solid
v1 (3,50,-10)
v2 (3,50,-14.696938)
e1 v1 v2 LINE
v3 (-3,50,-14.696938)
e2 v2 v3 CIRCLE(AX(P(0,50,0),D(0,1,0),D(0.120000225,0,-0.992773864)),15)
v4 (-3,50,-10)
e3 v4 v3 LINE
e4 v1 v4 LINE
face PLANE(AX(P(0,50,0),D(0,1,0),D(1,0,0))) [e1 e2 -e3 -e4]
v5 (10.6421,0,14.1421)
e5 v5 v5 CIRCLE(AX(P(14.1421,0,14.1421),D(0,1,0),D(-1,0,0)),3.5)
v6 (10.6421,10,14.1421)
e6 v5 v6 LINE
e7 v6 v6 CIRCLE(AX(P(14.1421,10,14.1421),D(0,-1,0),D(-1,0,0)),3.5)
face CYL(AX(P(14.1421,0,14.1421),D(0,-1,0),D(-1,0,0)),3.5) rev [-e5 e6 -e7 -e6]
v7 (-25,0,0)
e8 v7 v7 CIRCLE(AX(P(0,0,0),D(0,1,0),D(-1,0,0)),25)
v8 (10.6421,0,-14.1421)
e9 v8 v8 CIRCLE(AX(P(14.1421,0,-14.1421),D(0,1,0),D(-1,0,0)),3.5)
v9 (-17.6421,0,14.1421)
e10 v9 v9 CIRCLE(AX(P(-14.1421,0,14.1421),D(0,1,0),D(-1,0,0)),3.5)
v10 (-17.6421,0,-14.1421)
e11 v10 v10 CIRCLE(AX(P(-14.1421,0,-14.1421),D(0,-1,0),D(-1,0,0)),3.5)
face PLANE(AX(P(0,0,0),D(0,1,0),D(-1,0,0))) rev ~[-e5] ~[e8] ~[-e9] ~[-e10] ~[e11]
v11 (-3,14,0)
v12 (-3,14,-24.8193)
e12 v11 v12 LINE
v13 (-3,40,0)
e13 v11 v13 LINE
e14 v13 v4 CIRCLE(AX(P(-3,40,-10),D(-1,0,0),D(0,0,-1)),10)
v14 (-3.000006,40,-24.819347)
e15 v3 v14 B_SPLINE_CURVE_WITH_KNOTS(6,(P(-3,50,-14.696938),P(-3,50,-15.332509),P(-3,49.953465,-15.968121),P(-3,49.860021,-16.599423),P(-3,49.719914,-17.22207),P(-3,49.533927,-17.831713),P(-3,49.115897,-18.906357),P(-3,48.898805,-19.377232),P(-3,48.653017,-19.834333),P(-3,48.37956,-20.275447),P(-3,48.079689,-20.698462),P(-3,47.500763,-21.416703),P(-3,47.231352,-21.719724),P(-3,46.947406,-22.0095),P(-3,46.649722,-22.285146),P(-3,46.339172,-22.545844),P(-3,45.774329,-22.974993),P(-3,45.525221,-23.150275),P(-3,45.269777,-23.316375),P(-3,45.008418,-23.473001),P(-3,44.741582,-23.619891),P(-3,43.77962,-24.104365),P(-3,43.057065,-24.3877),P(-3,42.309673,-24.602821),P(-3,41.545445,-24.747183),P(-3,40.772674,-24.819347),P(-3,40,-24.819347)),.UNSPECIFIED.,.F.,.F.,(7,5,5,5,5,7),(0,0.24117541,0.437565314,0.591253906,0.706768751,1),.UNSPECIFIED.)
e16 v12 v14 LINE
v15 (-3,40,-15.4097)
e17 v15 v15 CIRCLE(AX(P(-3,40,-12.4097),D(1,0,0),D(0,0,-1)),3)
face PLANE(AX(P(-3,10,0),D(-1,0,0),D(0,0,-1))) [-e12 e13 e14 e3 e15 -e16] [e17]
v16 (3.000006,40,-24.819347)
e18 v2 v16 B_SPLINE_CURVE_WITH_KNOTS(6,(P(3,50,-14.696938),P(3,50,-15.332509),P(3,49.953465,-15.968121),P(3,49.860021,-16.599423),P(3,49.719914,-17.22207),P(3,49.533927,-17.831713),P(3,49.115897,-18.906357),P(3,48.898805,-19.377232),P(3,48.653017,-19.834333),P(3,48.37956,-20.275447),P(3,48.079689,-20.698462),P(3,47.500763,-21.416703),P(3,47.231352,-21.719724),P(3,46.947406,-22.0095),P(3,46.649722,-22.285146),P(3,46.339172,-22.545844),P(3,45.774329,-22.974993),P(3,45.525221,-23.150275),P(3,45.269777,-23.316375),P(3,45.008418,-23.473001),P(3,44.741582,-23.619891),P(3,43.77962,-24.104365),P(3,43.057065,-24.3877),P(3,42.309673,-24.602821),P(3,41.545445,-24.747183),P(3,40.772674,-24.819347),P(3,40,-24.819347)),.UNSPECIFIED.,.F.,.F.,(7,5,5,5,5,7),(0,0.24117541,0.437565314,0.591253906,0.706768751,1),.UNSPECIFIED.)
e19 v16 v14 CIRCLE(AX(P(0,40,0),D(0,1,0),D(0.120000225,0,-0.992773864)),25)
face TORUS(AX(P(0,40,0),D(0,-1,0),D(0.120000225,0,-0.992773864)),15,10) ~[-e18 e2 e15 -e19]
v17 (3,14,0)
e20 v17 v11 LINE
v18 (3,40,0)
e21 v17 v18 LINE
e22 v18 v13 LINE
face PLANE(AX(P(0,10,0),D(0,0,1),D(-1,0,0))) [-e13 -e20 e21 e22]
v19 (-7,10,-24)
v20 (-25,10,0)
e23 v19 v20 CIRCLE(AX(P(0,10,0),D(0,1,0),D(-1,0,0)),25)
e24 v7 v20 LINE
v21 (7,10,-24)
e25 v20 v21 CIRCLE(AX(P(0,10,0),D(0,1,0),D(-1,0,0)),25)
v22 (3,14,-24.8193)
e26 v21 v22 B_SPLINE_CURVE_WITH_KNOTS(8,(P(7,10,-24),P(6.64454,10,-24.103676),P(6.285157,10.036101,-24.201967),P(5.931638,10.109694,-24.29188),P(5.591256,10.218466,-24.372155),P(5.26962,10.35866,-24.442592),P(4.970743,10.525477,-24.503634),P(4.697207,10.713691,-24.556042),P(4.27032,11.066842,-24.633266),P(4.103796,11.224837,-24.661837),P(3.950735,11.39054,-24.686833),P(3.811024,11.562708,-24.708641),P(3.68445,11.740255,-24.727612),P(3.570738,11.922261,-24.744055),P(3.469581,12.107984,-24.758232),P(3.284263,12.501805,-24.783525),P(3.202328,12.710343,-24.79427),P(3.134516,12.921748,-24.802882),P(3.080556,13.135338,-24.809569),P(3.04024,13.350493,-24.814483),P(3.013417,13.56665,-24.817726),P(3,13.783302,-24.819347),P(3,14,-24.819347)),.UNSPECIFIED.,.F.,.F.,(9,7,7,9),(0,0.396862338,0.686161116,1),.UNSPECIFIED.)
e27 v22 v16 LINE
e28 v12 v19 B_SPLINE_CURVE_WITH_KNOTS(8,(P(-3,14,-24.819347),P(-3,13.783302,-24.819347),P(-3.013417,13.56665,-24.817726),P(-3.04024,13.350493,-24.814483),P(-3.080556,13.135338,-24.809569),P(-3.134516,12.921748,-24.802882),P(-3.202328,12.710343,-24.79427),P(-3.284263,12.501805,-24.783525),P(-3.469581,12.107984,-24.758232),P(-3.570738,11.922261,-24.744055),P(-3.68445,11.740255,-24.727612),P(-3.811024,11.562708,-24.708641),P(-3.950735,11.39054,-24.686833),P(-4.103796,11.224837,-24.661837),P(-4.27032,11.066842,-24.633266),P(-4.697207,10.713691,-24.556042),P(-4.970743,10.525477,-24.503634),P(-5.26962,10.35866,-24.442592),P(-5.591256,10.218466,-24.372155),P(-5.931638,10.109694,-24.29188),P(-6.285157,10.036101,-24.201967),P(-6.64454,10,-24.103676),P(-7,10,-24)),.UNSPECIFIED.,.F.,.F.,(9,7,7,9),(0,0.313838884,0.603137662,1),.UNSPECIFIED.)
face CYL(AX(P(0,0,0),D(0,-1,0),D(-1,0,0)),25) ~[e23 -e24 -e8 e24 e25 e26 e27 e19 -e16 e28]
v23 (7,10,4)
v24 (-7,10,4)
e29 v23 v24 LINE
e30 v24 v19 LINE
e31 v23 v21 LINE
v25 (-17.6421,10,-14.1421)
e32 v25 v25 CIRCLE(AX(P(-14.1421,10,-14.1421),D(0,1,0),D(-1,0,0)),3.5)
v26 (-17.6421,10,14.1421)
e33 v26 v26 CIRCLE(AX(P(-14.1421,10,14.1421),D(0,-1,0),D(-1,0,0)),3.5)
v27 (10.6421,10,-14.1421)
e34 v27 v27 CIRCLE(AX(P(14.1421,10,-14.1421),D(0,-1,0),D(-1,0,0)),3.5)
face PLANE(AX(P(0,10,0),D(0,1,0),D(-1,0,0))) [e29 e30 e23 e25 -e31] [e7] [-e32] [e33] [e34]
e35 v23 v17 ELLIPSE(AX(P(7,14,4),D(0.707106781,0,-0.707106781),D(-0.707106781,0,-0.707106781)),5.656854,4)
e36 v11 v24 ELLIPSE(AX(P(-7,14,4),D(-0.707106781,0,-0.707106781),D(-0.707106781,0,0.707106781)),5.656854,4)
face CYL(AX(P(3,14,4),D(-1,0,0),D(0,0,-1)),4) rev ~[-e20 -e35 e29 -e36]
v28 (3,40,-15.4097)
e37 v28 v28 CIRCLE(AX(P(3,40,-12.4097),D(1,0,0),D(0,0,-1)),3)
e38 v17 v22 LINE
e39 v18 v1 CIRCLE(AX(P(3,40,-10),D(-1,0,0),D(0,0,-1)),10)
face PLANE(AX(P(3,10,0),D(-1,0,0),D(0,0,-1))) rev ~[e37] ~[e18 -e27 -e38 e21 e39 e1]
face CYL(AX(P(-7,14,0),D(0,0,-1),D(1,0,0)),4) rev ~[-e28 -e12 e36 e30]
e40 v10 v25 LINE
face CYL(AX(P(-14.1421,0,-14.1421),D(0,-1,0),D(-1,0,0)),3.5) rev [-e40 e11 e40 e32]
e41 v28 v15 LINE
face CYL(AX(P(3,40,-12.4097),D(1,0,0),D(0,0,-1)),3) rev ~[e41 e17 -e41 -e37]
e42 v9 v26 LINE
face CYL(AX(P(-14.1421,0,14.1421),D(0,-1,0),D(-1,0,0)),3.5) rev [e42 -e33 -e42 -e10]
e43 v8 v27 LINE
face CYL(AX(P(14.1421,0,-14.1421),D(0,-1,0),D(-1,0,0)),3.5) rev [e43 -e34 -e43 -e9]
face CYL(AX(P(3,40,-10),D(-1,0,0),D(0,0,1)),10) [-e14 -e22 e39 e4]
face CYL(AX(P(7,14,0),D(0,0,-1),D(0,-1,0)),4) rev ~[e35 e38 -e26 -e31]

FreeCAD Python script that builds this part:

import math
import FreeCAD as App
import Part
import Sketcher

V = App.Vector


def edges_at(feature, points):
    """Names of the edges that pass closest to the given points."""
    edges = feature.Shape.Edges
    near = lambda p: min(range(len(edges)), key=lambda i: edges[i].distToShape(Part.Vertex(*p))[0])
    return sorted({f"Edge{near(p) + 1}" for p in points})

doc = App.newDocument("Part")
params = doc.addObject("Spreadsheet::Sheet", "Params")
for row, (alias, value) in enumerate([
    ("sketch1_diameter", "50 mm"),
    ("sketch1_diameter2", "7 mm"),
    ("pad1_length", "10 mm"),
    ("sketch2_radius", "25 mm"),
    ("pad2_length", "40 mm"),
    ("fillet_radius", "10 mm"),
    ("fillet2_radius", "10 mm"),
    ("fillet3_radius", "4 mm"),
    ("sketch3_diameter", "6 mm"),
    ("pocket1_length", "40 mm"),
], start=1):
    params.set(f"A{row}", alias)
    params.set(f"B{row}", "=" + value)
    params.setAlias(f"B{row}", alias)

body = doc.addObject("PartDesign::Body", "Body")

sketch1 = body.newObject("Sketcher::SketchObject", "Sketch")
sketch1.AttachmentSupport = (doc.getObject("XZ_Plane"), [""])
sketch1.MapMode = "FlatFace"
sketch1.addGeometry([
    Part.Circle(V(0, 0, 0), V(0, 0, 1), 25),
    Part.Circle(V(-14.1, -14.1, 0), V(0, 0, 1), 3.5),
    Part.Circle(V(14.1, -14.1, 0), V(0, 0, 1), 3.5),
    Part.Circle(V(14.1, 14.1, 0), V(0, 0, 1), 3.5),
    Part.Circle(V(-14.1, 14.1, 0), V(0, 0, 1), 3.5),
], False)
sketch1.addConstraint([
    Sketcher.Constraint("Coincident", 0, 3, -1, 1),
    Sketcher.Constraint("Equal", 1, 2),
    Sketcher.Constraint("Equal", 2, 3),
    Sketcher.Constraint("Equal", 3, 4),
    Sketcher.Constraint("Symmetric", 1, 3, 3, 3, -1, 1),
    Sketcher.Constraint("Symmetric", 2, 3, 4, 3, -1, 1),
    Sketcher.Constraint("Symmetric", 1, 3, 2, 3, -2),
    Sketcher.Constraint("Diameter", 0, 50.0),
    Sketcher.Constraint("Diameter", 1, 7.0),
    Sketcher.Constraint("DistanceX", 1, 3, -1, 1, 14.142),
    Sketcher.Constraint("DistanceY", 1, 3, -1, 1, 14.142),
])
sketch1.setExpression("Constraints[7]", "Params.sketch1_diameter")
sketch1.setExpression("Constraints[8]", "Params.sketch1_diameter2")
pad1 = body.newObject("PartDesign::Pad", "Pad")
pad1.Profile = sketch1
pad1.setExpression("Length", "Params.pad1_length")
pad1.Reversed = True

sketch2 = body.newObject("Sketcher::SketchObject", "Sketch001")
sketch2.AttachmentSupport = (doc.getObject("XZ_Plane"), [""])
sketch2.MapMode = "FlatFace"
sketch2.AttachmentOffset = App.Placement(V(0, 0, -10), App.Rotation())
sketch2.addGeometry([
    Part.LineSegment(V(-3, 0, 0), V(3, 0, 0)),
    Part.LineSegment(V(3, 0, 0), V(3, -25, 0)),
    Part.ArcOfCircle(Part.Circle(V(0, 0, 0), V(0, 0, 1), 25), math.radians(-96.89), math.radians(-83.11)),
    Part.LineSegment(V(-3, -25, 0), V(-3, 0, 0)),
], False)
sketch2.addConstraint([
    Sketcher.Constraint("Coincident", 0, 2, 1, 1),
    Sketcher.Constraint("Coincident", 1, 2, 2, 2),
    Sketcher.Constraint("Coincident", 2, 1, 3, 1),
    Sketcher.Constraint("Coincident", 3, 2, 0, 1),
    Sketcher.Constraint("Horizontal", 0),
    Sketcher.Constraint("Vertical", 1),
    Sketcher.Constraint("Vertical", 3),
    Sketcher.Constraint("Coincident", 2, 3, -1, 1),
    Sketcher.Constraint("Symmetric", 0, 2, 3, 2, -1, 1),
    Sketcher.Constraint("DistanceX", -1, 1, 0, 2, 3.0),
    Sketcher.Constraint("Radius", 2, 25.0),
])
sketch2.setExpression("Constraints[10]", "Params.sketch2_radius")
pad2 = body.newObject("PartDesign::Pad", "Pad001")
pad2.Profile = sketch2
pad2.setExpression("Length", "Params.pad2_length")
pad2.Reversed = True
doc.recompute()

fillet = body.newObject("PartDesign::Fillet", "Fillet")
fillet.Base = (pad2, edges_at(pad2, [(0, 50, 0)]))
fillet.setExpression("Radius", "Params.fillet_radius")
doc.recompute()

fillet2 = body.newObject("PartDesign::Fillet", "Fillet001")
fillet2.Base = (fillet, edges_at(fillet, [(0, 50, -25)]))
fillet2.setExpression("Radius", "Params.fillet2_radius")
doc.recompute()

fillet3 = body.newObject("PartDesign::Fillet", "Fillet002")
fillet3.Base = (fillet2, edges_at(fillet2, [(3, 10, -12.41), (0, 10, 0), (-3, 10, -12.41)]))
fillet3.setExpression("Radius", "Params.fillet3_radius")

sketch3 = body.newObject("Sketcher::SketchObject", "Sketch002")
sketch3.AttachmentSupport = (doc.getObject("YZ_Plane"), [""])
sketch3.MapMode = "FlatFace"
sketch3.AttachmentOffset = App.Placement(V(0, 0, 3), App.Rotation())
sketch3.addGeometry(Part.Circle(V(40, -12.4, 0), V(0, 0, 1), 3), False)
sketch3.addConstraint([
    Sketcher.Constraint("Diameter", 0, 6.0),
    Sketcher.Constraint("DistanceX", -1, 1, 0, 3, 40.0),
    Sketcher.Constraint("DistanceY", 0, 3, -1, 1, 12.4097),
])
sketch3.setExpression("Constraints[0]", "Params.sketch3_diameter")
pocket1 = body.newObject("PartDesign::Pocket", "Pocket")
pocket1.Profile = sketch3
pocket1.setExpression("Length", "Params.pocket1_length")

doc.recompute()
